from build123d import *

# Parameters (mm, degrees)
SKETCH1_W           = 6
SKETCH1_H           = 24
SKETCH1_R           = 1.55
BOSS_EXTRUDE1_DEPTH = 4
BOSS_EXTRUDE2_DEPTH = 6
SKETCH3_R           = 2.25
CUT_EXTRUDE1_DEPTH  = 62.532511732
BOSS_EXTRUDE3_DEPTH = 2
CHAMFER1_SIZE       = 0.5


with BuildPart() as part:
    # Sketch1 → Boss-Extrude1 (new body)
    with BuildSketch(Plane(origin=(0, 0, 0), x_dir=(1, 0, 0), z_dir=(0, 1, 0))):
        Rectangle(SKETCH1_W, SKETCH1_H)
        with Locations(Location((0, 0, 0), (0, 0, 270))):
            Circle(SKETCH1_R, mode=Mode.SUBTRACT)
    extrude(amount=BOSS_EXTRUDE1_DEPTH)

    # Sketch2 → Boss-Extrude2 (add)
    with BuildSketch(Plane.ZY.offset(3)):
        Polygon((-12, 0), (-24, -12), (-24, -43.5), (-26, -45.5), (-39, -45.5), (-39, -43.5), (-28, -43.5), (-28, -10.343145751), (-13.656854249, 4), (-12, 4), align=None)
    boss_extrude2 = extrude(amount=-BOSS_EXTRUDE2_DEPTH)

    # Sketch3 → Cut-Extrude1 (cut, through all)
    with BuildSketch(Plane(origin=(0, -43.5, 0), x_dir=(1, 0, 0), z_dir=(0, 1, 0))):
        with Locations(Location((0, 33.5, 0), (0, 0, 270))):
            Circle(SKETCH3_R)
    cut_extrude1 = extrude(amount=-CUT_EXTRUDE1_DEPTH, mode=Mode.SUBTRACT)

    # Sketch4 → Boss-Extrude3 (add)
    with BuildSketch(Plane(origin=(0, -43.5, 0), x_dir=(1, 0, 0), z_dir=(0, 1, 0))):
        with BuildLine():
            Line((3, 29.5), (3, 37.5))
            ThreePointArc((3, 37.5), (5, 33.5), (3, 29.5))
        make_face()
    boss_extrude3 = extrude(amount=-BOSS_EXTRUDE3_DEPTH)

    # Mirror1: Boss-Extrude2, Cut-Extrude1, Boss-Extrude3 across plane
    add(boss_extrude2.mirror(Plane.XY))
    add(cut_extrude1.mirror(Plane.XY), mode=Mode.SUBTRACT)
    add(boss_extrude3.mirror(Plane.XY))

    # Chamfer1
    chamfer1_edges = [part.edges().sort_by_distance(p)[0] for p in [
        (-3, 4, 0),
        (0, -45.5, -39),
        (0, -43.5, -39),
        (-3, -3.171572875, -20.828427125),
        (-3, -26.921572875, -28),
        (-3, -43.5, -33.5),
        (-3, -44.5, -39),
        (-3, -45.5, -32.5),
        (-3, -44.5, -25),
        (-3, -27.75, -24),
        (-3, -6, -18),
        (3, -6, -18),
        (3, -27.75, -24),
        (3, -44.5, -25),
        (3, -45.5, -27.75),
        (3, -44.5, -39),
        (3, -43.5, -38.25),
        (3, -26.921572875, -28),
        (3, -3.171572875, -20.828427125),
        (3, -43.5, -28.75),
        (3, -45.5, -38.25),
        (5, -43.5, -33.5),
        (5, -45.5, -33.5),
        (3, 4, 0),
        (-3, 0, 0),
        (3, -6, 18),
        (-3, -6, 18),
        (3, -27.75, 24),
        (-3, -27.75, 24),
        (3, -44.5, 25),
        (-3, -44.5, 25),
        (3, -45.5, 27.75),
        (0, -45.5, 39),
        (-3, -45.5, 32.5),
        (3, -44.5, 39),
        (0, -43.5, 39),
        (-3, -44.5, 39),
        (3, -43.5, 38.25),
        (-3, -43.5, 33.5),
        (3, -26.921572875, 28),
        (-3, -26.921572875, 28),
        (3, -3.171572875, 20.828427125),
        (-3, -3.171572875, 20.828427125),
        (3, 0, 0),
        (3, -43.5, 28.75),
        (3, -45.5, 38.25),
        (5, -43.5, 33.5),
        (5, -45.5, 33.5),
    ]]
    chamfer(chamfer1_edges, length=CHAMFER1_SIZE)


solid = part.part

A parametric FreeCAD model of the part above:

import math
import FreeCAD as App
import Part
import Sketcher

V = App.Vector
Q = App.Units.Quantity


def edges_at(feature, points):
    """Names of the edges that pass closest to the given points."""
    edges = feature.Shape.Edges
    near = lambda p: min(range(len(edges)), key=lambda i: edges[i].distToShape(Part.Vertex(*p))[0])
    return sorted({f"Edge{near(p) + 1}" for p in points})

doc = App.newDocument("Part")
params = doc.addObject("Spreadsheet::Sheet", "Params")
for row, (alias, value) in enumerate([
    ("sketch1_diameter", "3.1 mm"),
    ("sketch1_width", "6 mm"),
    ("sketch1_height", "24 mm"),
    ("pad1_length", "4 mm"),
    ("sketch2_width", "4 mm"),
    ("sketch2_width2", "2 mm"),
    ("sketch2_height", "11 mm"),
    ("sketch2_height2", "13 mm"),
    ("sketch2_width3", "31.5 mm"),
    ("pad2_length", "6 mm"),
    ("sketch3_diameter", "4.5 mm"),
    ("sketch4_radius", "5 mm"),
    ("sketch4_height", "8 mm"),
    ("pad3_length", "2 mm"),
    ("chamfer_size", "0.5 mm"),
], start=1):
    params.set(f"A{row}", alias)
    params.set(f"B{row}", "=" + value)
    params.setAlias(f"B{row}", alias)

body = doc.addObject("PartDesign::Body", "Body")

sketch1 = doc.addObject("Sketcher::SketchObject", "Sketch")
body.addObject(sketch1)
sketch1.AttachmentSupport = (doc.XZ_Plane, [""])
sketch1.MapMode = "FlatFace"
sketch1.addGeometry([
    Part.LineSegment(V(-3, -12, 0), V(-3, 12, 0)),
    Part.LineSegment(V(-3, 12, 0), V(3, 12, 0)),
    Part.LineSegment(V(3, 12, 0), V(3, -12, 0)),
    Part.LineSegment(V(3, -12, 0), V(-3, -12, 0)),
    Part.Circle(V(0, 0, 0), V(0, 0, 1), 1.6),
], False)
sketch1.addConstraint([
    Sketcher.Constraint("Coincident", 0, 2, 1, 1),
    Sketcher.Constraint("Coincident", 1, 2, 2, 1),
    Sketcher.Constraint("Coincident", 2, 2, 3, 1),
    Sketcher.Constraint("Coincident", 3, 2, 0, 1),
    Sketcher.Constraint("Vertical", 0),
    Sketcher.Constraint("Horizontal", 1),
    Sketcher.Constraint("Vertical", 2),
    Sketcher.Constraint("Horizontal", 3),
    Sketcher.Constraint("Coincident", 4, 3, -1, 1),
    Sketcher.Constraint("Symmetric", 0, 2, 2, 2, -1, 1),
    Sketcher.Constraint("Diameter", 4, 3.1),
    Sketcher.Constraint("DistanceX", 1, 1, 1, 2, 6.0),
    Sketcher.Constraint("DistanceY", 0, 1, 0, 2, 24.0),
])
sketch1.setExpression("Constraints[10]", "Params.sketch1_diameter")
sketch1.setExpression("Constraints[11]", "Params.sketch1_width")
sketch1.setExpression("Constraints[12]", "Params.sketch1_height")
pad1 = doc.addObject("PartDesign::Pad", "Pad")
body.addObject(pad1)
pad1.Profile = sketch1
pad1.setExpression("Length", "Params.pad1_length")
pad1.Reversed = True

sketch2 = doc.addObject("Sketcher::SketchObject", "Sketch001")
body.addObject(sketch2)
sketch2.AttachmentSupport = (doc.YZ_Plane, [""])
sketch2.MapMode = "FlatFace"
sketch2.AttachmentOffset = App.Placement(V(0, 0, -3), App.Rotation())
sketch2.addGeometry([
    Part.LineSegment(V(-12, -24, 0), V(0, -12, 0)),
    Part.LineSegment(V(0, -12, 0), V(4, -12, 0)),
    Part.LineSegment(V(4, -12, 0), V(4, -13.7, 0)),
    Part.LineSegment(V(4, -13.7, 0), V(-10.3, -28, 0)),
    Part.LineSegment(V(-10.3, -28, 0), V(-43.5, -28, 0)),
    Part.LineSegment(V(-43.5, -28, 0), V(-43.5, -39, 0)),
    Part.LineSegment(V(-43.5, -39, 0), V(-45.5, -39, 0)),
    Part.LineSegment(V(-45.5, -39, 0), V(-45.5, -26, 0)),
    Part.LineSegment(V(-45.5, -26, 0), V(-43.5, -24, 0)),
    Part.LineSegment(V(-43.5, -24, 0), V(-12, -24, 0)),
], False)
sketch2.addConstraint([
    Sketcher.Constraint("Coincident", 0, 2, 1, 1),
    Sketcher.Constraint("Coincident", 1, 2, 2, 1),
    Sketcher.Constraint("Coincident", 2, 2, 3, 1),
    Sketcher.Constraint("Coincident", 3, 2, 4, 1),
    Sketcher.Constraint("Coincident", 4, 2, 5, 1),
    Sketcher.Constraint("Coincident", 5, 2, 6, 1),
    Sketcher.Constraint("Coincident", 6, 2, 7, 1),
    Sketcher.Constraint("Coincident", 7, 2, 8, 1),
    Sketcher.Constraint("Coincident", 8, 2, 9, 1),
    Sketcher.Constraint("Coincident", 9, 2, 0, 1),
    Sketcher.Constraint("Horizontal", 1),
    Sketcher.Constraint("Vertical", 2),
    Sketcher.Constraint("Horizontal", 4),
    Sketcher.Constraint("Vertical", 5),
    Sketcher.Constraint("Horizontal", 6),
    Sketcher.Constraint("Vertical", 7),
    Sketcher.Constraint("Horizontal", 9),
    Sketcher.Constraint("PointOnObject", 0, 2, -2),
    Sketcher.Constraint("Parallel", 0, 3),
    Sketcher.Constraint("Parallel", 3, 8),
    Sketcher.Constraint("Vertical", 5, 2, 8, 2),
    Sketcher.Constraint("DistanceX", 1, 1, 1, 2, 4.0),
    Sketcher.Constraint("DistanceX", 6, 2, 6, 1, 2.0),
    Sketcher.Constraint("DistanceY", 5, 2, 5, 1, 11.0),
    Sketcher.Constraint("DistanceY", 7, 1, 7, 2, 13.0),
    Sketcher.Constraint("Angle", 0, Q("45 deg")),
    Sketcher.Constraint("DistanceX", 9, 1, 9, 2, 31.5),
    Sketcher.Constraint("DistanceY", 0, 2, -1, 1, 12.0),
    Sketcher.Constraint("DistanceY", 3, 2, -1, 1, 28.0),
    Sketcher.Constraint("Distance", 3, 20.284271),
])
sketch2.setExpression("Constraints[21]", "Params.sketch2_width")
sketch2.setExpression("Constraints[22]", "Params.sketch2_width2")
sketch2.setExpression("Constraints[23]", "Params.sketch2_height")
sketch2.setExpression("Constraints[24]", "Params.sketch2_height2")
sketch2.setExpression("Constraints[26]", "Params.sketch2_width3")
pad2 = doc.addObject("PartDesign::Pad", "Pad001")
body.addObject(pad2)
pad2.Profile = sketch2
pad2.setExpression("Length", "Params.pad2_length")

sketch3 = doc.addObject("Sketcher::SketchObject", "Sketch002")
body.addObject(sketch3)
sketch3.AttachmentSupport = (doc.XZ_Plane, [""])
sketch3.MapMode = "FlatFace"
sketch3.AttachmentOffset = App.Placement(V(0, 0, 43.5), App.Rotation())
sketch3.addGeometry(Part.Circle(V(0, -33.5, 0), V(0, 0, 1), 2.2), False)
sketch3.addConstraint([
    Sketcher.Constraint("PointOnObject", 0, 3, -2),
    Sketcher.Constraint("Diameter", 0, 4.5),
    Sketcher.Constraint("DistanceY", 0, 3, -1, 1, 33.5),
])
sketch3.setExpression("Constraints[1]", "Params.sketch3_diameter")
pocket1 = doc.addObject("PartDesign::Pocket", "Pocket")
body.addObject(pocket1)
pocket1.Profile = sketch3
pocket1.Type = "ThroughAll"
pocket1.Reversed = True

sketch4 = doc.addObject("Sketcher::SketchObject", "Sketch003")
body.addObject(sketch4)
sketch4.AttachmentSupport = (doc.XZ_Plane, [""])
sketch4.MapMode = "FlatFace"
sketch4.AttachmentOffset = App.Placement(V(0, 0, 43.5), App.Rotation())
sketch4.addGeometry([
    Part.LineSegment(V(3, -38, 0), V(3, -30, 0)),
    Part.ArcOfCircle(Part.Circle(V(0, -34, 0), V(0, 0, 1), 5), math.radians(-53), math.radians(53)),
], False)
sketch4.addConstraint([
    Sketcher.Constraint("Coincident", 0, 1, 1, 1),
    Sketcher.Constraint("Coincident", 1, 2, 0, 2),
    Sketcher.Constraint("Vertical", 0),
    Sketcher.Constraint("PointOnObject", 1, 3, -2),
    Sketcher.Constraint("Radius", 1, 5.0),
    Sketcher.Constraint("DistanceY", 0, 1, 0, 2, 8.0),
    Sketcher.Constraint("DistanceY", 1, 3, -1, 1, 33.5),
])
sketch4.setExpression("Constraints[4]", "Params.sketch4_radius")
sketch4.setExpression("Constraints[5]", "Params.sketch4_height")
pad3 = doc.addObject("PartDesign::Pad", "Pad002")
body.addObject(pad3)
pad3.Profile = sketch4
pad3.setExpression("Length", "Params.pad3_length")
doc.recompute()

mirrored = doc.addObject("PartDesign::Mirrored", "Mirrored")
body.addObject(mirrored)
mirrored.Originals = [pad2, pocket1, pad3]
mirrored.MirrorPlane = (doc.XY_Plane, [""])
body.Tip = mirrored
doc.recompute()

chamfer = doc.addObject("PartDesign::Chamfer", "Chamfer")
body.addObject(chamfer)
chamfer.Base = (mirrored, edges_at(mirrored, [
    (-3, 4, 0),
    (0, -45.5, -39),
    (0, -43.5, -39),
    (-3, -3.172, -20.828),
    (-3, -26.922, -28),
    (-3, -43.5, -33.5),
    (-3, -44.5, -39),
    (-3, -45.5, -32.5),
    (-3, -44.5, -25),
    (-3, -27.75, -24),
    (-3, -6, -18),
    (3, -6, -18),
    (3, -27.75, -24),
    (3, -44.5, -25),
    (3, -45.5, -27.75),
    (3, -44.5, -39),
    (3, -43.5, -38.25),
    (3, -26.922, -28),
    (3, -3.172, -20.828),
    (3, -43.5, -28.75),
    (3, -45.5, -38.25),
    (5, -43.5, -33.5),
    (5, -45.5, -33.5),
    (3, 4, 0),
    (-3, 0, 0),
    (3, -6, 18),
    (-3, -6, 18),
    (3, -27.75, 24),
    (-3, -27.75, 24),
    (3, -44.5, 25),
    (-3, -44.5, 25),
    (3, -45.5, 27.75),
    (0, -45.5, 39),
    (-3, -45.5, 32.5),
    (3, -44.5, 39),
    (0, -43.5, 39),
    (-3, -44.5, 39),
    (3, -43.5, 38.25),
    (-3, -43.5, 33.5),
    (3, -26.922, 28),
    (-3, -26.922, 28),
    (3, -3.172, 20.828),
    (-3, -3.172, 20.828),
    (3, 0, 0),
    (3, -43.5, 28.75),
    (3, -45.5, 38.25),
    (5, -43.5, 33.5),
    (5, -45.5, 33.5),
]))
chamfer.setExpression("Size", "Params.chamfer_size")

doc.recompute()
